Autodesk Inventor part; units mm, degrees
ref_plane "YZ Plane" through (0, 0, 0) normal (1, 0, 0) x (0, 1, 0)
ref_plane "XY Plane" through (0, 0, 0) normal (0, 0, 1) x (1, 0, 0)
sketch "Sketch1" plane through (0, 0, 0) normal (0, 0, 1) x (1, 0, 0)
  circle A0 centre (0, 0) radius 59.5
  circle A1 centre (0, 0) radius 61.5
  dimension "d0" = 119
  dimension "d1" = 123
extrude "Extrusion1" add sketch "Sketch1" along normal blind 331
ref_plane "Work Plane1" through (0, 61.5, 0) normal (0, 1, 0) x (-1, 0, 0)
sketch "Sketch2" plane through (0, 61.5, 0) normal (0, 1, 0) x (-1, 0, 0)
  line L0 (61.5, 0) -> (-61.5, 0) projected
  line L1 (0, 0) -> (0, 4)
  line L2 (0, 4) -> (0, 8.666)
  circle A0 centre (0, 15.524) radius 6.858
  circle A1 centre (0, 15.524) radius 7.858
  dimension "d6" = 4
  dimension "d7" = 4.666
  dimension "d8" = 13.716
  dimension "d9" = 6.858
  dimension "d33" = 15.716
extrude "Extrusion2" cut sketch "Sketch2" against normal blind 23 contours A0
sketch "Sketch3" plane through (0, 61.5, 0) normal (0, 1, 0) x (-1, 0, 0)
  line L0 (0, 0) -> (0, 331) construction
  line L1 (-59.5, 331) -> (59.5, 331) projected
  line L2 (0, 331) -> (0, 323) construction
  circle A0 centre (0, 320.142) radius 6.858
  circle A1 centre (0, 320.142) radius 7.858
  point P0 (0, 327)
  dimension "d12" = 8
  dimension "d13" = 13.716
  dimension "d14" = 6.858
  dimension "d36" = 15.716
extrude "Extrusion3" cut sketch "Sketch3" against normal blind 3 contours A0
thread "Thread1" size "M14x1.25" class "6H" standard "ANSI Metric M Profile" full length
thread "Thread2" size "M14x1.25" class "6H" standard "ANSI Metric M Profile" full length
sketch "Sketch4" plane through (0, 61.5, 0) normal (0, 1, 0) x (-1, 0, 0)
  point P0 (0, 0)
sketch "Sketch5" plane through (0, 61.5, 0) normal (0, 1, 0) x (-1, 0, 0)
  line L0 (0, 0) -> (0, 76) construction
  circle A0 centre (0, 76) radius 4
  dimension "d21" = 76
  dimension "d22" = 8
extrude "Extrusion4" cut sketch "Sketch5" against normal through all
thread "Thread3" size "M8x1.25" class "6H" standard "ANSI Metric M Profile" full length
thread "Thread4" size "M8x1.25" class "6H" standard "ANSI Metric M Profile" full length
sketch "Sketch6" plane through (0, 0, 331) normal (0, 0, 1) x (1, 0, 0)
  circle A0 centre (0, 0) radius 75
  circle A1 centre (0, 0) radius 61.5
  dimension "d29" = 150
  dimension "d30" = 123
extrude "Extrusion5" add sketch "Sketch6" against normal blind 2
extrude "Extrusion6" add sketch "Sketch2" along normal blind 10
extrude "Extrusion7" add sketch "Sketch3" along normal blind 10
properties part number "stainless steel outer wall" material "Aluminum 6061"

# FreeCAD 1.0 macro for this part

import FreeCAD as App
import Part
import Sketcher

doc = App.newDocument("Part")
body = doc.addObject("PartDesign::Body", "Body")
body.AllowCompound = True

# Sketch on XY plane
sketch1 = doc.addObject("Sketcher::SketchObject", "Sketch")
body.addObject(sketch1)
sketch1.AttachmentSupport = (doc.XY_Plane, [""])
sketch1.MapMode = "FlatFace"
sketch1.addGeometry([
    Part.Circle(App.Vector(0, 0, 0), App.Vector(0, 0, 1), 61.5),
    Part.Circle(App.Vector(0, 0, 0), App.Vector(0, 0, 1), 59.5),
], False)
sketch1.addConstraint([
    Sketcher.Constraint("Coincident", 0, 3, -1, 1),
    Sketcher.Constraint("Coincident", 1, 3, -1, 1),
    Sketcher.Constraint("Diameter", 0, 123.0),
    Sketcher.Constraint("Diameter", 1, 119.0),
])
pad1 = doc.addObject("PartDesign::Pad", "Pad")
body.addObject(pad1)
pad1.Profile = sketch1
pad1.Length = 331

# Sketch on XZ plane
sketch2 = doc.addObject("Sketcher::SketchObject", "Sketch001")
body.addObject(sketch2)
sketch2.AttachmentSupport = (doc.XZ_Plane, [""])
sketch2.MapMode = "FlatFace"
sketch2.AttachmentOffset = App.Placement(App.Vector(0, 0, -61.5), App.Rotation())
sketch2.addGeometry(Part.Circle(App.Vector(0, 15.524, 0), App.Vector(0, 0, 1), 6.858), False)
sketch2.addConstraint([
    Sketcher.Constraint("PointOnObject", 0, 3, -2),
    Sketcher.Constraint("Diameter", 0, 13.716),
    Sketcher.Constraint("DistanceY", -1, 1, 0, 3, 15.524),
])
pocket1 = doc.addObject("PartDesign::Pocket", "Pocket")
body.addObject(pocket1)
pocket1.Profile = sketch2
pocket1.Length = 23
pocket1.Reversed = True

# Sketch on XZ plane
sketch3 = doc.addObject("Sketcher::SketchObject", "Sketch002")
body.addObject(sketch3)
sketch3.AttachmentSupport = (doc.XZ_Plane, [""])
sketch3.MapMode = "FlatFace"
sketch3.AttachmentOffset = App.Placement(App.Vector(0, 0, -61.5), App.Rotation())
sketch3.addGeometry(Part.Circle(App.Vector(0, 320.142, 0), App.Vector(0, 0, 1), 6.858), False)
sketch3.addConstraint([
    Sketcher.Constraint("PointOnObject", 0, 3, -2),
    Sketcher.Constraint("Diameter", 0, 13.716),
    Sketcher.Constraint("DistanceY", -1, 1, 0, 3, 320.142),
])
pocket2 = doc.addObject("PartDesign::Pocket", "Pocket001")
body.addObject(pocket2)
pocket2.Profile = sketch3
pocket2.Length = 3
pocket2.Reversed = True

# Sketch on XZ plane
sketch4 = doc.addObject("Sketcher::SketchObject", "Sketch003")
body.addObject(sketch4)
sketch4.AttachmentSupport = (doc.XZ_Plane, [""])
sketch4.MapMode = "FlatFace"
sketch4.AttachmentOffset = App.Placement(App.Vector(0, 0, -61.5), App.Rotation())
sketch4.addGeometry(Part.Circle(App.Vector(0, 76, 0), App.Vector(0, 0, 1), 4), False)
sketch4.addConstraint([
    Sketcher.Constraint("PointOnObject", 0, 3, -2),
    Sketcher.Constraint("Diameter", 0, 8.0),
    Sketcher.Constraint("DistanceY", -1, 1, 0, 3, 76.0),
])
pocket3 = doc.addObject("PartDesign::Pocket", "Pocket002")
body.addObject(pocket3)
pocket3.Profile = sketch4
pocket3.Type = "ThroughAll"
pocket3.Reversed = True

# Sketch on XY plane
sketch5 = doc.addObject("Sketcher::SketchObject", "Sketch004")
body.addObject(sketch5)
sketch5.AttachmentSupport = (doc.XY_Plane, [""])
sketch5.MapMode = "FlatFace"
sketch5.AttachmentOffset = App.Placement(App.Vector(0, 0, 331), App.Rotation())
sketch5.addGeometry([
    Part.Circle(App.Vector(0, 0, 0), App.Vector(0, 0, 1), 75),
    Part.Circle(App.Vector(0, 0, 0), App.Vector(0, 0, 1), 61.5),
], False)
sketch5.addConstraint([
    Sketcher.Constraint("Coincident", 0, 3, -1, 1),
    Sketcher.Constraint("Coincident", 1, 3, -1, 1),
    Sketcher.Constraint("Diameter", 0, 150.0),
    Sketcher.Constraint("Diameter", 1, 123.0),
])
pad2 = doc.addObject("PartDesign::Pad", "Pad001")
body.addObject(pad2)
pad2.Profile = sketch5
pad2.Length = 2
pad2.Reversed = True

# Sketch on XZ plane
sketch6 = doc.addObject("Sketcher::SketchObject", "Sketch005")
body.addObject(sketch6)
sketch6.AttachmentSupport = (doc.XZ_Plane, [""])
sketch6.MapMode = "FlatFace"
sketch6.AttachmentOffset = App.Placement(App.Vector(0, 0, -61.5), App.Rotation())
sketch6.addGeometry([
    Part.Circle(App.Vector(0, 15.524, 0), App.Vector(0, 0, 1), 7.858),
    Part.Circle(App.Vector(0, 15.524, 0), App.Vector(0, 0, 1), 6.858),
], False)
sketch6.addConstraint([
    Sketcher.Constraint("Coincident", 1, 3, 0, 3),
    Sketcher.Constraint("PointOnObject", 0, 3, -2),
    Sketcher.Constraint("Diameter", 0, 15.716),
    Sketcher.Constraint("Diameter", 1, 13.716),
    Sketcher.Constraint("DistanceY", -1, 1, 0, 3, 15.524),
])
pad3 = doc.addObject("PartDesign::Pad", "Pad002")
body.addObject(pad3)
pad3.Profile = sketch6
pad3.Length = 10
pad3.Reversed = True

# Sketch on XZ plane
sketch7 = doc.addObject("Sketcher::SketchObject", "Sketch006")
body.addObject(sketch7)
sketch7.AttachmentSupport = (doc.XZ_Plane, [""])
sketch7.MapMode = "FlatFace"
sketch7.AttachmentOffset = App.Placement(App.Vector(0, 0, -61.5), App.Rotation())
sketch7.addGeometry([
    Part.Circle(App.Vector(0, 320.142, 0), App.Vector(0, 0, 1), 7.858),
    Part.Circle(App.Vector(0, 320.142, 0), App.Vector(0, 0, 1), 6.858),
], False)
sketch7.addConstraint([
    Sketcher.Constraint("Coincident", 1, 3, 0, 3),
    Sketcher.Constraint("PointOnObject", 0, 3, -2),
    Sketcher.Constraint("Diameter", 0, 15.716),
    Sketcher.Constraint("Diameter", 1, 13.716),
    Sketcher.Constraint("DistanceY", -1, 1, 0, 3, 320.142),
])
pad4 = doc.addObject("PartDesign::Pad", "Pad003")
body.addObject(pad4)
pad4.Profile = sketch7
pad4.Length = 10
pad4.Reversed = True

doc.recompute()
